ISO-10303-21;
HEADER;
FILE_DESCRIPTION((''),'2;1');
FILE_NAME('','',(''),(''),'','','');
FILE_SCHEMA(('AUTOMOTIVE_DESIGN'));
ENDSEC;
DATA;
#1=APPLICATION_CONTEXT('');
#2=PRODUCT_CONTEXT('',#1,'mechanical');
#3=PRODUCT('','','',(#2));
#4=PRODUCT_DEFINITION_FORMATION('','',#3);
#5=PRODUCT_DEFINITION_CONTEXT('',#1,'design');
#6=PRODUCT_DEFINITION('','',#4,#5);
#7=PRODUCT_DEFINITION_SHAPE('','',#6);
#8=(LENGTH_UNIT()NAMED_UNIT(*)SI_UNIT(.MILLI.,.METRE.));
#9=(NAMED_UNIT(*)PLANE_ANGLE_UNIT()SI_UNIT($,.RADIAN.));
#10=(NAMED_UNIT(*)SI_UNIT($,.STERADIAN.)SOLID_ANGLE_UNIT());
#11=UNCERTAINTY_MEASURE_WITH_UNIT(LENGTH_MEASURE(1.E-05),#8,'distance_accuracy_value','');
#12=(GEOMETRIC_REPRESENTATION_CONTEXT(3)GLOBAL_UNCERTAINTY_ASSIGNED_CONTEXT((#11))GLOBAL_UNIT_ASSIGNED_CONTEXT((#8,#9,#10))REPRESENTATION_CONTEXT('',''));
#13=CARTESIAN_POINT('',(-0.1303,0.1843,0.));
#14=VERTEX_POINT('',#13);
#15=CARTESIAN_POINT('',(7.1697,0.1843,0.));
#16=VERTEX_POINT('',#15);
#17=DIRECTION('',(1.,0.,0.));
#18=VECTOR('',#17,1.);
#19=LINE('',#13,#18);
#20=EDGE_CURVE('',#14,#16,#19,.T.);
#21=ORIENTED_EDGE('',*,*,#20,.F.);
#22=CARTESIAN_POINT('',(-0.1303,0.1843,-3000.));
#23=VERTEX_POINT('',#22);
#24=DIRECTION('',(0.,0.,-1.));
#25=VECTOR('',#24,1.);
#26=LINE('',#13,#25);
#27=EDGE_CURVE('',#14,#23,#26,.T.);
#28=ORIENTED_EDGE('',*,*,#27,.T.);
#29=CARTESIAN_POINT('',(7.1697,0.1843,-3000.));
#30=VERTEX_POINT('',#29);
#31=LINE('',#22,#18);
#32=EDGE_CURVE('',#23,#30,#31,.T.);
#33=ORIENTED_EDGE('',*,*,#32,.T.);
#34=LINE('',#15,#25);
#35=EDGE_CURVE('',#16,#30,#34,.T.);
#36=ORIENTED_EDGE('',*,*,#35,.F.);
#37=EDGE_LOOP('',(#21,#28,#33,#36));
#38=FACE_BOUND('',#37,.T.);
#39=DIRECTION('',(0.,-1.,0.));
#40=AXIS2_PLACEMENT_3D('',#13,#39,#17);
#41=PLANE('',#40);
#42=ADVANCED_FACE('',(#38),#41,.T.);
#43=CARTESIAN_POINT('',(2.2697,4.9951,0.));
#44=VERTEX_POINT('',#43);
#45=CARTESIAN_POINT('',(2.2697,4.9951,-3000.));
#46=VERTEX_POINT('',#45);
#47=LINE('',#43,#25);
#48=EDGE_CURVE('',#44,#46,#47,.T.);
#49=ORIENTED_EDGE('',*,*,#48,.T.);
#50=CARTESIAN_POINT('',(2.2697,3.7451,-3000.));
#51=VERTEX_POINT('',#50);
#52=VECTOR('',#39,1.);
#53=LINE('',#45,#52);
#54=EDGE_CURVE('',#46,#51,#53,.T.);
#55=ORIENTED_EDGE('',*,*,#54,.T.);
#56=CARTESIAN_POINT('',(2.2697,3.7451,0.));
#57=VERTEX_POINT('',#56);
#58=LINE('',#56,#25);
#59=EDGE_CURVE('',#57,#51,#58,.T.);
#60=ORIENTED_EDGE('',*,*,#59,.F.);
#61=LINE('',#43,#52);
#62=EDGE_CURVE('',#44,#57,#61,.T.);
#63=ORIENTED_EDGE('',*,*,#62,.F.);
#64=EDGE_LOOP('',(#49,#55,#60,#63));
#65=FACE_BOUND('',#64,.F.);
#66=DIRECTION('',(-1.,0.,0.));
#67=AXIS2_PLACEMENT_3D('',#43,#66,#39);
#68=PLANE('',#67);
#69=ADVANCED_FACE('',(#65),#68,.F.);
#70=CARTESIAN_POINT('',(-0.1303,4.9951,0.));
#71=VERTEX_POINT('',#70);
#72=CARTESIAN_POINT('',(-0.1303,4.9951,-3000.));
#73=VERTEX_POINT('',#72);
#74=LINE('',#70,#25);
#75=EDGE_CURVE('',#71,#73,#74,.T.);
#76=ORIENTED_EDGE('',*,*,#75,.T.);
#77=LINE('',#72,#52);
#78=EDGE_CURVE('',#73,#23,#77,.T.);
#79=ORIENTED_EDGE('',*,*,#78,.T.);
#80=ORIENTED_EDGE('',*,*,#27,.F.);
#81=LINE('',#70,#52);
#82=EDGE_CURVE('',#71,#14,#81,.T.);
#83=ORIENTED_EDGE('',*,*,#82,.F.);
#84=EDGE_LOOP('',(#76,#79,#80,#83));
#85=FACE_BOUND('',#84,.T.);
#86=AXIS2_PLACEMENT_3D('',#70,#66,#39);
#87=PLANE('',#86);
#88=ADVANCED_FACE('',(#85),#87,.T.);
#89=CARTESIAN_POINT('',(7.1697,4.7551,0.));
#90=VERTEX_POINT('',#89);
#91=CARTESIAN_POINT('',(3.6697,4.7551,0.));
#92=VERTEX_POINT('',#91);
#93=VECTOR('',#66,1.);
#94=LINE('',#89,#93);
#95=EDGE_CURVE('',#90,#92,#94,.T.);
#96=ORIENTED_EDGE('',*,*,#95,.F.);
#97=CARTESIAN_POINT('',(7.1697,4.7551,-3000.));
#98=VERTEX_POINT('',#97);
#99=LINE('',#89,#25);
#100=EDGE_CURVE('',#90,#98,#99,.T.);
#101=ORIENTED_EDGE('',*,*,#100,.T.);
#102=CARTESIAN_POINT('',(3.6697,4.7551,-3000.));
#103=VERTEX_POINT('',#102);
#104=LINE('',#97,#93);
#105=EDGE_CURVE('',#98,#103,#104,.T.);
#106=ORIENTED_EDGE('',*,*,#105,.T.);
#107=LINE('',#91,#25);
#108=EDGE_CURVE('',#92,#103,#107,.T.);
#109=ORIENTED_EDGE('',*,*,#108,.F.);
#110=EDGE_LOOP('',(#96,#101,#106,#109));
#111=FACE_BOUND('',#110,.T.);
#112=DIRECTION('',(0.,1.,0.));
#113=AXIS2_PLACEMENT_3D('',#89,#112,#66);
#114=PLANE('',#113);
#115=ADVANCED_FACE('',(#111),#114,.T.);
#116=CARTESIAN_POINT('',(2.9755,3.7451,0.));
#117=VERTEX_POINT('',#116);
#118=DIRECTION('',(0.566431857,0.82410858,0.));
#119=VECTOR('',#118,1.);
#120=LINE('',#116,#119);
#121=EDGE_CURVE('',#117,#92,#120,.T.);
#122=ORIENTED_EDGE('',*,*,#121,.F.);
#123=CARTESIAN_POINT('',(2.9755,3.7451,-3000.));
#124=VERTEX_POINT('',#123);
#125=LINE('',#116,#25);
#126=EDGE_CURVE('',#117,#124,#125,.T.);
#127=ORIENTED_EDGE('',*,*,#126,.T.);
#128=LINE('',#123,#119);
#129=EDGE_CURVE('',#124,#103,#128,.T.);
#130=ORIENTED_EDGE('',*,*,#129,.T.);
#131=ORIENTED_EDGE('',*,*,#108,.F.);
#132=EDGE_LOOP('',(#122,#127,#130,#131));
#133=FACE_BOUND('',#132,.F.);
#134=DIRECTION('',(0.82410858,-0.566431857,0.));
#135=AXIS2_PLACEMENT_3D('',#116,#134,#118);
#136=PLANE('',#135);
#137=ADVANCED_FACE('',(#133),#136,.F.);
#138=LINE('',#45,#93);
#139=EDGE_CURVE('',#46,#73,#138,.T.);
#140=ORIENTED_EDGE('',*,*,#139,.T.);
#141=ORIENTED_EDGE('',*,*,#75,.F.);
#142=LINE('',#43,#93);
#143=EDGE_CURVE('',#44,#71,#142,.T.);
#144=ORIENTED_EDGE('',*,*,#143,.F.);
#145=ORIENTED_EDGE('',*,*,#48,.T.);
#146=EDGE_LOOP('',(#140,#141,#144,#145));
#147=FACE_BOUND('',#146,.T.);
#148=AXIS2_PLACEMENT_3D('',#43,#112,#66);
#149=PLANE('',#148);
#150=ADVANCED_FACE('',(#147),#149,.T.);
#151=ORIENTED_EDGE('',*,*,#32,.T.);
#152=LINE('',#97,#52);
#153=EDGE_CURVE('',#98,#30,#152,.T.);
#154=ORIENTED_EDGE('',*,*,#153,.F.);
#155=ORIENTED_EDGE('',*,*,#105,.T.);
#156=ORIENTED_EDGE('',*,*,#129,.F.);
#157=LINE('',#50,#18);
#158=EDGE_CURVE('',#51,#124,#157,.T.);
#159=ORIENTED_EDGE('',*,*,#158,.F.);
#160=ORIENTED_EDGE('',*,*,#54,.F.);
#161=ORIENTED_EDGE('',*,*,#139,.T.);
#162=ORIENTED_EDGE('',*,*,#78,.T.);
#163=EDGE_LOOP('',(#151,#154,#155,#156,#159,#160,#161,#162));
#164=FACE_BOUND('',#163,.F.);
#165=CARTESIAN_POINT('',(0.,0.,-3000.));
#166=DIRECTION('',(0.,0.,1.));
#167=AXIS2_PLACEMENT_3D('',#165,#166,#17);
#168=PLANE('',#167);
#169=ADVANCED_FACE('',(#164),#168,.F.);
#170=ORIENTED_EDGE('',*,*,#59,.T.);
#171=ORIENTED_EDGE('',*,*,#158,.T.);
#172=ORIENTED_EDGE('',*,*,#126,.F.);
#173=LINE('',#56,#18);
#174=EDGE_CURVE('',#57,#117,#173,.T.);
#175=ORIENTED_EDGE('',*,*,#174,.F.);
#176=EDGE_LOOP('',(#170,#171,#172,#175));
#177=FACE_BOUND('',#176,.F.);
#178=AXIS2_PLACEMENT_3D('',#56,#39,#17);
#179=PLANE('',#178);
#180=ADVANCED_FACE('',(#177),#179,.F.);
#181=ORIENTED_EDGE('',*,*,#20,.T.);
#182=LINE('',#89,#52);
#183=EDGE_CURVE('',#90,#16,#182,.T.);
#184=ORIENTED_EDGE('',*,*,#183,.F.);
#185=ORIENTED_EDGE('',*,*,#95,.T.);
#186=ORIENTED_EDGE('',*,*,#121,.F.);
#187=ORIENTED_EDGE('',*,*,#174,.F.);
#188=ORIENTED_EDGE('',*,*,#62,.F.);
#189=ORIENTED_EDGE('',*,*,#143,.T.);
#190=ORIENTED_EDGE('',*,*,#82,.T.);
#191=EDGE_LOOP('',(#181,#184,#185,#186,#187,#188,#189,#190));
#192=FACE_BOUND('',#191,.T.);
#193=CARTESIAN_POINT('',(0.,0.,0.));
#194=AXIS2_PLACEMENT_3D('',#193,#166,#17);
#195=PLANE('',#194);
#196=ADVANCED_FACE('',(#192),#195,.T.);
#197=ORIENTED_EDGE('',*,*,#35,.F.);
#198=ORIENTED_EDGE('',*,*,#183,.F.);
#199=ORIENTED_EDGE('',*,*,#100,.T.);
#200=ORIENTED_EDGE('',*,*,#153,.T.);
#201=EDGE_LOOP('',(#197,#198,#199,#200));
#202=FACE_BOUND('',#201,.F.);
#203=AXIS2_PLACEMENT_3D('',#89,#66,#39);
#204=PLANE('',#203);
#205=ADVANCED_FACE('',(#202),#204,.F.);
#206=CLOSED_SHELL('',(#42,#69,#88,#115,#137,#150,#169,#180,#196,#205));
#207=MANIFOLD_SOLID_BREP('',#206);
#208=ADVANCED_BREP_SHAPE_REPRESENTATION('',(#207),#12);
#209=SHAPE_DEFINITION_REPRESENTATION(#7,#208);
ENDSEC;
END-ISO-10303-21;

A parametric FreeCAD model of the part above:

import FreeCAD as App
import Part
import Sketcher
Q = App.Units.Quantity

doc = App.newDocument("Part")
body = doc.addObject("PartDesign::Body", "Body")

sketch1 = body.newObject("Sketcher::SketchObject", "Sketch")
sketch1.AttachmentSupport = (doc.getObject("XY_Plane"), [""])
sketch1.MapMode = "FlatFace"
sketch1.addGeometry(Part.LineSegment(App.Vector(2.2697, 3.7451, 0), App.Vector(2.2697, 4.9951, 0)), False)
sketch1.addGeometry(Part.LineSegment(App.Vector(2.2697, 4.9951, 0), App.Vector(-0.1303, 4.9951, 0)), False)
sketch1.addGeometry(Part.LineSegment(App.Vector(-0.1303, 4.9951, 0), App.Vector(-0.1303, 0.1843, 0)), False)
sketch1.addGeometry(Part.LineSegment(App.Vector(-0.1303, 0.1843, 0), App.Vector(7.1697, 0.1843, 0)), False)
sketch1.addGeometry(Part.LineSegment(App.Vector(7.1697, 0.1843, 0), App.Vector(7.1697, 4.7551, 0)), False)
sketch1.addGeometry(Part.LineSegment(App.Vector(7.1697, 4.7551, 0), App.Vector(3.6697, 4.7551, 0)), False)
sketch1.addGeometry(Part.LineSegment(App.Vector(3.6697, 4.7551, 0), App.Vector(2.9755, 3.7451, 0)), False)
sketch1.addGeometry(Part.LineSegment(App.Vector(2.9755, 3.7451, 0), App.Vector(2.2697, 3.7451, 0)), False)
sketch1.addConstraint(Sketcher.Constraint("Coincident", 0, 2, 1, 1))
sketch1.addConstraint(Sketcher.Constraint("Coincident", 1, 2, 2, 1))
sketch1.addConstraint(Sketcher.Constraint("Coincident", 2, 2, 3, 1))
sketch1.addConstraint(Sketcher.Constraint("Coincident", 3, 2, 4, 1))
sketch1.addConstraint(Sketcher.Constraint("Coincident", 4, 2, 5, 1))
sketch1.addConstraint(Sketcher.Constraint("Coincident", 5, 2, 6, 1))
sketch1.addConstraint(Sketcher.Constraint("Coincident", 6, 2, 7, 1))
sketch1.addConstraint(Sketcher.Constraint("Coincident", 7, 2, 0, 1))
sketch1.addConstraint(Sketcher.Constraint("Vertical", 0))
sketch1.addConstraint(Sketcher.Constraint("Horizontal", 1))
sketch1.addConstraint(Sketcher.Constraint("Vertical", 2))
sketch1.addConstraint(Sketcher.Constraint("Horizontal", 3))
sketch1.addConstraint(Sketcher.Constraint("Vertical", 4))
sketch1.addConstraint(Sketcher.Constraint("Horizontal", 5))
sketch1.addConstraint(Sketcher.Constraint("Horizontal", 7))
sketch1.addConstraint(Sketcher.Constraint("DistanceX", 1, 2, 1, 1, Q("2.4 mm")))
sketch1.addConstraint(Sketcher.Constraint("DistanceX", 3, 1, 3, 2, Q("7.3 mm")))
sketch1.addConstraint(Sketcher.Constraint("DistanceY", 0, 1, 0, 2, Q("1.25 mm")))
sketch1.addConstraint(Sketcher.Constraint("DistanceY", 4, 2, 0, 2, Q("0.24 mm")))
sketch1.addConstraint(Sketcher.Constraint("DistanceX", 5, 2, 5, 1, Q("3.5 mm")))
sketch1.addConstraint(Sketcher.Constraint("DistanceX", 7, 2, 7, 1, Q("0.7058 mm")))
sketch1.addConstraint(Sketcher.Constraint("DistanceY", 2, 2, 2, 1, Q("4.8108 mm")))
sketch1.addConstraint(Sketcher.Constraint("DistanceY", -1, 1, 0, 2, Q("4.995 mm")))
sketch1.addConstraint(Sketcher.Constraint("DistanceX", -1, 1, 0, 2, Q("2.2697 mm")))
pad1 = body.newObject("PartDesign::Pad", "Pad")
pad1.Profile = sketch1
pad1.Length = 3000
pad1.Reversed = True

doc.recompute()
